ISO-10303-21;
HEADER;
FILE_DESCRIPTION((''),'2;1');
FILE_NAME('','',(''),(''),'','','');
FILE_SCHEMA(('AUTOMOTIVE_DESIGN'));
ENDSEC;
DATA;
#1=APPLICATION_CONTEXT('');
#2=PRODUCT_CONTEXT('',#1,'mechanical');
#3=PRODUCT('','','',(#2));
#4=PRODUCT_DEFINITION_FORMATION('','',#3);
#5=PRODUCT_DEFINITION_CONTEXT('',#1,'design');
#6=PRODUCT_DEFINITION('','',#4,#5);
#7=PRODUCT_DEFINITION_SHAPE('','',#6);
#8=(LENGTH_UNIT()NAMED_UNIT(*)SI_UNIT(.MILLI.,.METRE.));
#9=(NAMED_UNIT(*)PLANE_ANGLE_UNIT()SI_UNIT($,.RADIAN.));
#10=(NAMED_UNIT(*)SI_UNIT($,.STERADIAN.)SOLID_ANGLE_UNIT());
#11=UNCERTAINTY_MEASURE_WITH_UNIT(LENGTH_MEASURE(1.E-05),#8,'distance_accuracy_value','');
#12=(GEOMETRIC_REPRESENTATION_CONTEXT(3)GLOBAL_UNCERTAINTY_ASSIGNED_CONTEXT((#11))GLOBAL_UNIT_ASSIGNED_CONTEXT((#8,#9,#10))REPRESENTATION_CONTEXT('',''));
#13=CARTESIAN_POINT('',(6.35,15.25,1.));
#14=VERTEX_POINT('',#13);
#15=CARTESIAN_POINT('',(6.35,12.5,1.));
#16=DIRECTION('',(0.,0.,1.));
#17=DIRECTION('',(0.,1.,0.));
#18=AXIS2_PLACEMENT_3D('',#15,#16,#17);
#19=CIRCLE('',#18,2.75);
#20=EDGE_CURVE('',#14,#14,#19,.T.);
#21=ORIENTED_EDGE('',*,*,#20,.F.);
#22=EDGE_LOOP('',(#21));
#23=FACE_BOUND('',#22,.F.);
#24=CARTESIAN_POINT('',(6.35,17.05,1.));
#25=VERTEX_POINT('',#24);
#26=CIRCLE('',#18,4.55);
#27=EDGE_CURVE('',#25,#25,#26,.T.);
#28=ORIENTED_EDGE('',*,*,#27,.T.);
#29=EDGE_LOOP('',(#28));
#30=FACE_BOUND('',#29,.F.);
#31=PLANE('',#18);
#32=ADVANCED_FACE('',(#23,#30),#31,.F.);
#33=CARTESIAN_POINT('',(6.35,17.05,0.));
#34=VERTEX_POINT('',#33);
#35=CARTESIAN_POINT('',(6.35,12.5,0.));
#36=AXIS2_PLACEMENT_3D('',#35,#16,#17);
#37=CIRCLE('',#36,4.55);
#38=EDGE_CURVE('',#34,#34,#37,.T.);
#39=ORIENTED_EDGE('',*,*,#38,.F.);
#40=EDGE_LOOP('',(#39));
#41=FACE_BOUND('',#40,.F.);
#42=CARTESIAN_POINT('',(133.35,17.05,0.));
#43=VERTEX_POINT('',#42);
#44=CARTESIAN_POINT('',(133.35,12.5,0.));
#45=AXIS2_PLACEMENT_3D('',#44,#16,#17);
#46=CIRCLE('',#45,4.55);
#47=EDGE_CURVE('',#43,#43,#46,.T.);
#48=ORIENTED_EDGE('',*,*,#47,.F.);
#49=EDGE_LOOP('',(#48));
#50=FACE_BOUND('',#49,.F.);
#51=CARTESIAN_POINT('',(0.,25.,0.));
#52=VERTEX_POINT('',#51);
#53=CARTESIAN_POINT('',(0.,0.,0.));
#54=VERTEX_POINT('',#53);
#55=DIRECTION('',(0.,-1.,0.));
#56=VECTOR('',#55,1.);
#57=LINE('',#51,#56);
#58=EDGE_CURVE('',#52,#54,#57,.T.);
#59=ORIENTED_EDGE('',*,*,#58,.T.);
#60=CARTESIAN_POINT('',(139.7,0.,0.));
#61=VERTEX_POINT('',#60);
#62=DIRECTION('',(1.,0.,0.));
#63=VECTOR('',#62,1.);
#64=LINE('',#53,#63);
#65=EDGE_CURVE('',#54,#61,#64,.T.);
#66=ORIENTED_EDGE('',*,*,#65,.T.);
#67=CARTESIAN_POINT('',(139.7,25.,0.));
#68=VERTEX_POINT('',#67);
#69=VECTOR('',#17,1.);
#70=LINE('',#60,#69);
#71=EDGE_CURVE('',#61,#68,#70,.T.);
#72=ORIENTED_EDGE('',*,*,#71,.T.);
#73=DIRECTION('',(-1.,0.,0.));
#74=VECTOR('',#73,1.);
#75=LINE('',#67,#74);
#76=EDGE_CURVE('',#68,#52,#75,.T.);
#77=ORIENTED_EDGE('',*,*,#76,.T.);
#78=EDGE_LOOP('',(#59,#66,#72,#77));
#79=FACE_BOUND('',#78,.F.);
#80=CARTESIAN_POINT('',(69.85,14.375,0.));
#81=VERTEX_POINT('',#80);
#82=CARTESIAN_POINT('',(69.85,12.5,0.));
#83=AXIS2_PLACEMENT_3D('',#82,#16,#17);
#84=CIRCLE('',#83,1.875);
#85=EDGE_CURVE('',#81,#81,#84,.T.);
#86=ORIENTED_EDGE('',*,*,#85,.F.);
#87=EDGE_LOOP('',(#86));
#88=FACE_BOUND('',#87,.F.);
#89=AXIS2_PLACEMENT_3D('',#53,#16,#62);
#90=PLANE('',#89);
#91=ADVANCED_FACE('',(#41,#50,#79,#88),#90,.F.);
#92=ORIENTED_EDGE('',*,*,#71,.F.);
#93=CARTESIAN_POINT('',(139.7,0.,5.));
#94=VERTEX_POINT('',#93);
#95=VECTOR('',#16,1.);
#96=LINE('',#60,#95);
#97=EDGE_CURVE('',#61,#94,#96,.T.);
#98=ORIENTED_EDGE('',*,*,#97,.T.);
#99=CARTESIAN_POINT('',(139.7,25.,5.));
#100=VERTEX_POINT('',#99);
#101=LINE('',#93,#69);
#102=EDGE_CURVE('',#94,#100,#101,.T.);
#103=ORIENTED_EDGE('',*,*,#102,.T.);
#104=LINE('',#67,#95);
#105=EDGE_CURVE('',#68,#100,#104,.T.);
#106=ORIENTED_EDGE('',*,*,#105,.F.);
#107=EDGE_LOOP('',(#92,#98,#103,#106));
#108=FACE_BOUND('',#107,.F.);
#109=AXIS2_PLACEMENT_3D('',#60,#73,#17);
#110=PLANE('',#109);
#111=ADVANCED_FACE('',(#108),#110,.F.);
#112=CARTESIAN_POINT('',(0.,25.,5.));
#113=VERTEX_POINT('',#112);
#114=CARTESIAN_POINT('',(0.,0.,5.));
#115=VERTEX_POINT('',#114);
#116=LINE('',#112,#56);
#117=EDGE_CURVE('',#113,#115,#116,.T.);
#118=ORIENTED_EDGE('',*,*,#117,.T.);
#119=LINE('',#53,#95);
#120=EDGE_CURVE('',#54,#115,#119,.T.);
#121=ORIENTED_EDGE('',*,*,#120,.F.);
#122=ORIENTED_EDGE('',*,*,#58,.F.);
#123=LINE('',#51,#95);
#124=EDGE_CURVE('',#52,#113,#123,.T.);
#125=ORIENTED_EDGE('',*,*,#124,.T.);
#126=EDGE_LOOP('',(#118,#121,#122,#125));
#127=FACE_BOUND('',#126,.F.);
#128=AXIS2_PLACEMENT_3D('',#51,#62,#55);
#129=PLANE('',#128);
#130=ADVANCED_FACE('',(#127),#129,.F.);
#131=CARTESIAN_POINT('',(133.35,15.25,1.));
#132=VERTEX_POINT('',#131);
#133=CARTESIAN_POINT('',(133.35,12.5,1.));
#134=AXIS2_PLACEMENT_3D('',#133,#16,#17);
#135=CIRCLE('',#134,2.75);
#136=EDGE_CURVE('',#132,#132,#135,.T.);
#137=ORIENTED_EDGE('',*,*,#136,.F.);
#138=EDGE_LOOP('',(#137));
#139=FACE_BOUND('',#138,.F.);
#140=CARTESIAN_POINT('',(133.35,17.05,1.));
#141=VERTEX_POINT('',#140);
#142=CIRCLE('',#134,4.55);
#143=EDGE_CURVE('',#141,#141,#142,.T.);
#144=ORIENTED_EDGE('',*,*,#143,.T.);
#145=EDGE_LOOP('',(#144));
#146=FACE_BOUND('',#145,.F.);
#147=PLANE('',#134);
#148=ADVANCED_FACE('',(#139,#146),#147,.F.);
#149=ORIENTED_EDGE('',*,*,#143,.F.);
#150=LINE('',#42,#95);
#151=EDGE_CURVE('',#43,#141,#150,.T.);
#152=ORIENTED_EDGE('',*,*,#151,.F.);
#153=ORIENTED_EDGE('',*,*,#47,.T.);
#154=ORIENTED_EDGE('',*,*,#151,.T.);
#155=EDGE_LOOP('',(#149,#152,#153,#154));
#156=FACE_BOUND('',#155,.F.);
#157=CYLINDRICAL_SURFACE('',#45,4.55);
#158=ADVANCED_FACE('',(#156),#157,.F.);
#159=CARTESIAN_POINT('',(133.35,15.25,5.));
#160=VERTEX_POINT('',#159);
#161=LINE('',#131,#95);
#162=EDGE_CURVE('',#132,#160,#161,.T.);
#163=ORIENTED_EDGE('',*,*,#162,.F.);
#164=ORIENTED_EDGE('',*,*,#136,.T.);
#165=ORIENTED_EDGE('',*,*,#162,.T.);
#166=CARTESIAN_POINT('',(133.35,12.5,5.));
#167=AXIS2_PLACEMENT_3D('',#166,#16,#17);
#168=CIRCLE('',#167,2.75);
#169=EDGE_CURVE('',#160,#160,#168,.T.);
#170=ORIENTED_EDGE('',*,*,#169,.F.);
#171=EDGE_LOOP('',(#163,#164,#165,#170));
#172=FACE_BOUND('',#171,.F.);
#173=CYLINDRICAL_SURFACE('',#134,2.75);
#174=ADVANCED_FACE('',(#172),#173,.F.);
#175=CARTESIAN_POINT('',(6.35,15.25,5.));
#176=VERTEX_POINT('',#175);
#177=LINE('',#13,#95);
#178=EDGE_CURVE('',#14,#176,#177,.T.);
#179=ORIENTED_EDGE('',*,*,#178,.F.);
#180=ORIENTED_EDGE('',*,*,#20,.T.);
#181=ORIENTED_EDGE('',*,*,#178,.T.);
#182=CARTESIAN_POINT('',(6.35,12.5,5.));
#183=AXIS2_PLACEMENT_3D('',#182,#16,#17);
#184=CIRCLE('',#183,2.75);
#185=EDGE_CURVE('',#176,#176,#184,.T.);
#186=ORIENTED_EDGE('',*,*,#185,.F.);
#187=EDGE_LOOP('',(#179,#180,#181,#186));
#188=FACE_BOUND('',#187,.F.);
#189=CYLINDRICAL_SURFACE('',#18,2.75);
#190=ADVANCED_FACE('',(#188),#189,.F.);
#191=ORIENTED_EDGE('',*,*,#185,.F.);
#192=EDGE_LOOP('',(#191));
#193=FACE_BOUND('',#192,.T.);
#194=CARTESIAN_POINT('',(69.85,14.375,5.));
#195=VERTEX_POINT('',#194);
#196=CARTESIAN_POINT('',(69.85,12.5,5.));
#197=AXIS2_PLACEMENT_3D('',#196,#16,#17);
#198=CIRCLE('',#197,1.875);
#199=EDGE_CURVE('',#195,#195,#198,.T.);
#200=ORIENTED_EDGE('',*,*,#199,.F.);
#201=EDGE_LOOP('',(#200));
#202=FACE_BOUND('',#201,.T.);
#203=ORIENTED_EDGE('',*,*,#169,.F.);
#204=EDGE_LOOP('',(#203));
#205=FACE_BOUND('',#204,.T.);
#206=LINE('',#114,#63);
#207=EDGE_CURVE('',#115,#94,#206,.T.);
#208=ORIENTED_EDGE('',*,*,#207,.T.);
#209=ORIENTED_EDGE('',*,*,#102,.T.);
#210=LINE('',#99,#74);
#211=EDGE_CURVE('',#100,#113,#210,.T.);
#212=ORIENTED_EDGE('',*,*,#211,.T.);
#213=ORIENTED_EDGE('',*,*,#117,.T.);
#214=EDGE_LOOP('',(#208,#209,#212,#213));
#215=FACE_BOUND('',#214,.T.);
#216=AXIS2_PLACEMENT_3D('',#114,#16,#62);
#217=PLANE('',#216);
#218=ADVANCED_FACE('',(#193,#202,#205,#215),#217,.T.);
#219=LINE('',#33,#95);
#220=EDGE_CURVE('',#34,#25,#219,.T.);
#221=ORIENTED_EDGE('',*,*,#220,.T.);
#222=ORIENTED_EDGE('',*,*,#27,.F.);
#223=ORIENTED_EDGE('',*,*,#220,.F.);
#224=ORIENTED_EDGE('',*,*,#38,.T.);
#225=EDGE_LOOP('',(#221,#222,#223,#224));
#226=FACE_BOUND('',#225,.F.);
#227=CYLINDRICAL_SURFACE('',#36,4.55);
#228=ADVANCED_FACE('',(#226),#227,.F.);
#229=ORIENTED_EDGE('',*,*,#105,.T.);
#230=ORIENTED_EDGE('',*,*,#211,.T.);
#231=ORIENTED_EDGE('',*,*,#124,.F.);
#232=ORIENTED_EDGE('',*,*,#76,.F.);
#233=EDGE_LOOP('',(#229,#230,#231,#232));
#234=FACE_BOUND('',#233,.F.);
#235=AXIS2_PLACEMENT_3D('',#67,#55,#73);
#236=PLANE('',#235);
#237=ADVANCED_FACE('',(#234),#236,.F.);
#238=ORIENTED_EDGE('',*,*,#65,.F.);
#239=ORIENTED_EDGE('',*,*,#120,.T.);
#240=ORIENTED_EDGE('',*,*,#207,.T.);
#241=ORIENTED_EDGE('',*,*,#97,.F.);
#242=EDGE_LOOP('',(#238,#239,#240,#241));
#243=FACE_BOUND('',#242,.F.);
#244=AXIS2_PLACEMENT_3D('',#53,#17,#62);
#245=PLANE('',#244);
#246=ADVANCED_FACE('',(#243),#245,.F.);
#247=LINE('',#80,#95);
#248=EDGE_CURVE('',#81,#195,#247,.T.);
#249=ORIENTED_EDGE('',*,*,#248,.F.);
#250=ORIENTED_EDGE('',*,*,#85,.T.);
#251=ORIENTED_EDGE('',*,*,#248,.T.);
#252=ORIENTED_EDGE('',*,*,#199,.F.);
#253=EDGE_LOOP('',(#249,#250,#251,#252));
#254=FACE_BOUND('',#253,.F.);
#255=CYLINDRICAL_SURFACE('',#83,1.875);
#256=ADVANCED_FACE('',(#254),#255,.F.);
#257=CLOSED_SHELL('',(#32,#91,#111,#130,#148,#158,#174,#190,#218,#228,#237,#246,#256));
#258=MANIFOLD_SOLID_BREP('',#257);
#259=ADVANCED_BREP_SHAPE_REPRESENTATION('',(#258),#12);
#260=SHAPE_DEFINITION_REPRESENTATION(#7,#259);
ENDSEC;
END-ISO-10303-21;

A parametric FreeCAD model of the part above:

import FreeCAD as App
import Part
import Sketcher
Q = App.Units.Quantity


def add_polygon(sketch, points):
    """Adds a closed chain of lines whose ends are joined by coincident constraints."""
    first, n = sketch.GeometryCount, len(points)
    for a, b in zip(points, points[1:] + points[:1]):
        sketch.addGeometry(Part.LineSegment(App.Vector(*a, 0), App.Vector(*b, 0)), False)
    for i in range(n):
        sketch.addConstraint(Sketcher.Constraint("Coincident", first + i, 2, first + (i + 1) % n, 1))

doc = App.newDocument("Part")
body = doc.addObject("PartDesign::Body", "Body")

sketch1 = doc.addObject("Sketcher::SketchObject", "Sketch")
body.addObject(sketch1)
sketch1.AttachmentSupport = (doc.XY_Plane, [""])
sketch1.MapMode = "FlatFace"
add_polygon(sketch1, [(0, 25), (0, 0), (140, 0), (140, 25)])
sketch1.addConstraint([
    Sketcher.Constraint("Vertical", 0),
    Sketcher.Constraint("Horizontal", 1),
    Sketcher.Constraint("Vertical", 2),
    Sketcher.Constraint("Horizontal", 3),
    Sketcher.Constraint("Coincident", 0, 2, -1, 1),
    Sketcher.Constraint("DistanceY", 0, 2, 0, 1, Q("25 mm")),
    Sketcher.Constraint("DistanceX", 1, 1, 1, 2, Q("139.7 mm")),
])
pad1 = doc.addObject("PartDesign::Pad", "Pad")
body.addObject(pad1)
pad1.Profile = sketch1
pad1.Length = 5

sketch2 = doc.addObject("Sketcher::SketchObject", "Sketch001")
body.addObject(sketch2)
sketch2.AttachmentSupport = (doc.XY_Plane, [""])
sketch2.MapMode = "FlatFace"
sketch2.addGeometry([
    Part.Circle(App.Vector(6.3, 12.5, 0), App.Vector(0, 0, 1), 2.8),
    Part.Circle(App.Vector(133.3, 12.5, 0), App.Vector(0, 0, 1), 2.8),
], False)
sketch2.addConstraint([
    Sketcher.Constraint("Equal", 0, 1),
    Sketcher.Constraint("Horizontal", 0, 3, 1, 3),
    Sketcher.Constraint("Diameter", 0, Q("5.5 mm")),
    Sketcher.Constraint("DistanceX", 0, 3, 1, 3, Q("127 mm")),
    Sketcher.Constraint("DistanceY", -1, 1, 0, 3, Q("12.5 mm")),
    Sketcher.Constraint("DistanceX", -1, 1, 0, 3, Q("6.35 mm")),
])
doc.recompute()
hole = doc.addObject("PartDesign::Hole", "Hole")
body.addObject(hole)
hole.Profile = sketch2
hole.ThreadType = "None"
hole.Diameter = 5.5
hole.DepthType = "Dimension"
hole.Depth = 13
hole.DrillPoint = "Angled"
hole.DrillPointAngle = 118
hole.HoleCutType = "Counterbore"
hole.HoleCutDiameter = 9.1
hole.HoleCutDepth = 1
hole.Reversed = True

sketch3 = doc.addObject("Sketcher::SketchObject", "Sketch002")
body.addObject(sketch3)
sketch3.AttachmentSupport = (doc.XY_Plane, [""])
sketch3.MapMode = "FlatFace"
sketch3.addGeometry(Part.Circle(App.Vector(69.8, 12.5, 0), App.Vector(0, 0, 1), 1.9), False)
sketch3.addConstraint([
    Sketcher.Constraint("Diameter", 0, Q("3.75 mm")),
    Sketcher.Constraint("DistanceY", -1, 1, 0, 3, Q("12.5 mm")),
    Sketcher.Constraint("DistanceX", -1, 1, 0, 3, Q("69.85 mm")),
])
doc.recompute()
hole2 = doc.addObject("PartDesign::Hole", "Hole001")
body.addObject(hole2)
hole2.Profile = sketch3
hole2.ThreadType = "None"
hole2.Diameter = 3.75
hole2.DepthType = "Dimension"
hole2.Depth = 15
hole2.DrillPoint = "Angled"
hole2.DrillPointAngle = 118
hole2.Reversed = True

doc.recompute()
